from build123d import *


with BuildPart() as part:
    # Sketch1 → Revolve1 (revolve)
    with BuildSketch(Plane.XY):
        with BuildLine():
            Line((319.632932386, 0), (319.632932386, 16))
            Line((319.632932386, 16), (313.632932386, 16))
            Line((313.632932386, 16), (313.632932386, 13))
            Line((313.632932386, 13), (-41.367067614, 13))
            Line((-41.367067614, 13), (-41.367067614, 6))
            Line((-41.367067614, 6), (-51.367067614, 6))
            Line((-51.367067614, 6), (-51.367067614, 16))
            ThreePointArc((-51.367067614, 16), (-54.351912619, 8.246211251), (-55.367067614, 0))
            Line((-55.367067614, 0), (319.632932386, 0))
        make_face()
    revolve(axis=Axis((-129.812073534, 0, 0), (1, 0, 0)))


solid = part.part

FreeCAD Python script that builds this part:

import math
import FreeCAD as App
import Part
import Sketcher

V = App.Vector

doc = App.newDocument("Part")
params = doc.addObject("Spreadsheet::Sheet", "Params")
for row, (alias, value) in enumerate([
    ("sketch1_radius", "34 mm"),
    ("sketch1_width", "6 mm"),
    ("sketch1_width2", "355 mm"),
    ("sketch1_width3", "10 mm"),
    ("sketch1_width4", "375 mm"),
    ("revolution_angle", "360 deg"),
], start=1):
    params.set(f"A{row}", alias)
    params.set(f"B{row}", "=" + value)
    params.setAlias(f"B{row}", alias)

body = doc.addObject("PartDesign::Body", "Body")

# Sketch on XY plane
sketch1 = doc.addObject("Sketcher::SketchObject", "Sketch")
body.addObject(sketch1)
sketch1.AttachmentSupport = (doc.XY_Plane, [""])
sketch1.MapMode = "FlatFace"
sketch1.addGeometry([
    Part.LineSegment(V(319.6, 0, 0), V(319.6, 16, 0)),  # 0
    Part.LineSegment(V(319.6, 16, 0), V(313.6, 16, 0)),  # 1
    Part.LineSegment(V(313.6, 16, 0), V(313.6, 13, 0)),  # 2
    Part.LineSegment(V(313.6, 13, 0), V(-41.4, 13, 0)),  # 3
    Part.LineSegment(V(-41.4, 13, 0), V(-41.4, 6, 0)),  # 4
    Part.LineSegment(V(-41.4, 6, 0), V(-51.4, 6, 0)),  # 5
    Part.LineSegment(V(-51.4, 6, 0), V(-51.4, 16, 0)),  # 6
    Part.ArcOfCircle(Part.Circle(V(-21.4, 0, 0), V(0, 0, 1), 34), math.radians(152), math.radians(180)),  # 7
    Part.LineSegment(V(-55.4, 0, 0), V(319.6, 0, 0)),  # 8
], False)
sketch1.addConstraint([
    Sketcher.Constraint("Coincident", 0, 2, 1, 1),
    Sketcher.Constraint("Coincident", 1, 2, 2, 1),
    Sketcher.Constraint("Coincident", 2, 2, 3, 1),
    Sketcher.Constraint("Coincident", 3, 2, 4, 1),
    Sketcher.Constraint("Coincident", 4, 2, 5, 1),
    Sketcher.Constraint("Coincident", 5, 2, 6, 1),
    Sketcher.Constraint("Coincident", 6, 2, 7, 1),
    Sketcher.Constraint("Coincident", 7, 2, 8, 1),
    Sketcher.Constraint("Coincident", 8, 2, 0, 1),
    Sketcher.Constraint("Vertical", 0),
    Sketcher.Constraint("Horizontal", 1),
    Sketcher.Constraint("Vertical", 2),
    Sketcher.Constraint("Horizontal", 3),
    Sketcher.Constraint("Vertical", 4),
    Sketcher.Constraint("Horizontal", 5),
    Sketcher.Constraint("Vertical", 6),
    Sketcher.Constraint("Horizontal", 8),
    Sketcher.Constraint("PointOnObject", 7, 3, -1),
    Sketcher.Constraint("PointOnObject", 7, 2, -1),
    Sketcher.Constraint("Horizontal", 1, 2, 6, 2),
    Sketcher.Constraint("Equal", 5, 6),
    Sketcher.Constraint("Radius", 7, 34.0),
    Sketcher.Constraint("DistanceX", 1, 2, 1, 1, 6.0),
    Sketcher.Constraint("DistanceX", 3, 2, 3, 1, 355.0),
    Sketcher.Constraint("DistanceX", 5, 2, 5, 1, 10.0),
    Sketcher.Constraint("DistanceX", 8, 1, 8, 2, 375.0),
    Sketcher.Constraint("DistanceY", 2, 2, 2, 1, 3.0),
    Sketcher.Constraint("DistanceX", 7, 3, -1, 1, 21.367068),
])
sketch1.setExpression("Constraints[21]", "Params.sketch1_radius")
sketch1.setExpression("Constraints[22]", "Params.sketch1_width")
sketch1.setExpression("Constraints[23]", "Params.sketch1_width2")
sketch1.setExpression("Constraints[24]", "Params.sketch1_width3")
sketch1.setExpression("Constraints[25]", "Params.sketch1_width4")
revolution = doc.addObject("PartDesign::Revolution", "Revolution")
body.addObject(revolution)
revolution.Profile = sketch1
revolution.ReferenceAxis = (sketch1, ["H_Axis"])
revolution.setExpression("Angle", "Params.revolution_angle")

doc.recompute()
